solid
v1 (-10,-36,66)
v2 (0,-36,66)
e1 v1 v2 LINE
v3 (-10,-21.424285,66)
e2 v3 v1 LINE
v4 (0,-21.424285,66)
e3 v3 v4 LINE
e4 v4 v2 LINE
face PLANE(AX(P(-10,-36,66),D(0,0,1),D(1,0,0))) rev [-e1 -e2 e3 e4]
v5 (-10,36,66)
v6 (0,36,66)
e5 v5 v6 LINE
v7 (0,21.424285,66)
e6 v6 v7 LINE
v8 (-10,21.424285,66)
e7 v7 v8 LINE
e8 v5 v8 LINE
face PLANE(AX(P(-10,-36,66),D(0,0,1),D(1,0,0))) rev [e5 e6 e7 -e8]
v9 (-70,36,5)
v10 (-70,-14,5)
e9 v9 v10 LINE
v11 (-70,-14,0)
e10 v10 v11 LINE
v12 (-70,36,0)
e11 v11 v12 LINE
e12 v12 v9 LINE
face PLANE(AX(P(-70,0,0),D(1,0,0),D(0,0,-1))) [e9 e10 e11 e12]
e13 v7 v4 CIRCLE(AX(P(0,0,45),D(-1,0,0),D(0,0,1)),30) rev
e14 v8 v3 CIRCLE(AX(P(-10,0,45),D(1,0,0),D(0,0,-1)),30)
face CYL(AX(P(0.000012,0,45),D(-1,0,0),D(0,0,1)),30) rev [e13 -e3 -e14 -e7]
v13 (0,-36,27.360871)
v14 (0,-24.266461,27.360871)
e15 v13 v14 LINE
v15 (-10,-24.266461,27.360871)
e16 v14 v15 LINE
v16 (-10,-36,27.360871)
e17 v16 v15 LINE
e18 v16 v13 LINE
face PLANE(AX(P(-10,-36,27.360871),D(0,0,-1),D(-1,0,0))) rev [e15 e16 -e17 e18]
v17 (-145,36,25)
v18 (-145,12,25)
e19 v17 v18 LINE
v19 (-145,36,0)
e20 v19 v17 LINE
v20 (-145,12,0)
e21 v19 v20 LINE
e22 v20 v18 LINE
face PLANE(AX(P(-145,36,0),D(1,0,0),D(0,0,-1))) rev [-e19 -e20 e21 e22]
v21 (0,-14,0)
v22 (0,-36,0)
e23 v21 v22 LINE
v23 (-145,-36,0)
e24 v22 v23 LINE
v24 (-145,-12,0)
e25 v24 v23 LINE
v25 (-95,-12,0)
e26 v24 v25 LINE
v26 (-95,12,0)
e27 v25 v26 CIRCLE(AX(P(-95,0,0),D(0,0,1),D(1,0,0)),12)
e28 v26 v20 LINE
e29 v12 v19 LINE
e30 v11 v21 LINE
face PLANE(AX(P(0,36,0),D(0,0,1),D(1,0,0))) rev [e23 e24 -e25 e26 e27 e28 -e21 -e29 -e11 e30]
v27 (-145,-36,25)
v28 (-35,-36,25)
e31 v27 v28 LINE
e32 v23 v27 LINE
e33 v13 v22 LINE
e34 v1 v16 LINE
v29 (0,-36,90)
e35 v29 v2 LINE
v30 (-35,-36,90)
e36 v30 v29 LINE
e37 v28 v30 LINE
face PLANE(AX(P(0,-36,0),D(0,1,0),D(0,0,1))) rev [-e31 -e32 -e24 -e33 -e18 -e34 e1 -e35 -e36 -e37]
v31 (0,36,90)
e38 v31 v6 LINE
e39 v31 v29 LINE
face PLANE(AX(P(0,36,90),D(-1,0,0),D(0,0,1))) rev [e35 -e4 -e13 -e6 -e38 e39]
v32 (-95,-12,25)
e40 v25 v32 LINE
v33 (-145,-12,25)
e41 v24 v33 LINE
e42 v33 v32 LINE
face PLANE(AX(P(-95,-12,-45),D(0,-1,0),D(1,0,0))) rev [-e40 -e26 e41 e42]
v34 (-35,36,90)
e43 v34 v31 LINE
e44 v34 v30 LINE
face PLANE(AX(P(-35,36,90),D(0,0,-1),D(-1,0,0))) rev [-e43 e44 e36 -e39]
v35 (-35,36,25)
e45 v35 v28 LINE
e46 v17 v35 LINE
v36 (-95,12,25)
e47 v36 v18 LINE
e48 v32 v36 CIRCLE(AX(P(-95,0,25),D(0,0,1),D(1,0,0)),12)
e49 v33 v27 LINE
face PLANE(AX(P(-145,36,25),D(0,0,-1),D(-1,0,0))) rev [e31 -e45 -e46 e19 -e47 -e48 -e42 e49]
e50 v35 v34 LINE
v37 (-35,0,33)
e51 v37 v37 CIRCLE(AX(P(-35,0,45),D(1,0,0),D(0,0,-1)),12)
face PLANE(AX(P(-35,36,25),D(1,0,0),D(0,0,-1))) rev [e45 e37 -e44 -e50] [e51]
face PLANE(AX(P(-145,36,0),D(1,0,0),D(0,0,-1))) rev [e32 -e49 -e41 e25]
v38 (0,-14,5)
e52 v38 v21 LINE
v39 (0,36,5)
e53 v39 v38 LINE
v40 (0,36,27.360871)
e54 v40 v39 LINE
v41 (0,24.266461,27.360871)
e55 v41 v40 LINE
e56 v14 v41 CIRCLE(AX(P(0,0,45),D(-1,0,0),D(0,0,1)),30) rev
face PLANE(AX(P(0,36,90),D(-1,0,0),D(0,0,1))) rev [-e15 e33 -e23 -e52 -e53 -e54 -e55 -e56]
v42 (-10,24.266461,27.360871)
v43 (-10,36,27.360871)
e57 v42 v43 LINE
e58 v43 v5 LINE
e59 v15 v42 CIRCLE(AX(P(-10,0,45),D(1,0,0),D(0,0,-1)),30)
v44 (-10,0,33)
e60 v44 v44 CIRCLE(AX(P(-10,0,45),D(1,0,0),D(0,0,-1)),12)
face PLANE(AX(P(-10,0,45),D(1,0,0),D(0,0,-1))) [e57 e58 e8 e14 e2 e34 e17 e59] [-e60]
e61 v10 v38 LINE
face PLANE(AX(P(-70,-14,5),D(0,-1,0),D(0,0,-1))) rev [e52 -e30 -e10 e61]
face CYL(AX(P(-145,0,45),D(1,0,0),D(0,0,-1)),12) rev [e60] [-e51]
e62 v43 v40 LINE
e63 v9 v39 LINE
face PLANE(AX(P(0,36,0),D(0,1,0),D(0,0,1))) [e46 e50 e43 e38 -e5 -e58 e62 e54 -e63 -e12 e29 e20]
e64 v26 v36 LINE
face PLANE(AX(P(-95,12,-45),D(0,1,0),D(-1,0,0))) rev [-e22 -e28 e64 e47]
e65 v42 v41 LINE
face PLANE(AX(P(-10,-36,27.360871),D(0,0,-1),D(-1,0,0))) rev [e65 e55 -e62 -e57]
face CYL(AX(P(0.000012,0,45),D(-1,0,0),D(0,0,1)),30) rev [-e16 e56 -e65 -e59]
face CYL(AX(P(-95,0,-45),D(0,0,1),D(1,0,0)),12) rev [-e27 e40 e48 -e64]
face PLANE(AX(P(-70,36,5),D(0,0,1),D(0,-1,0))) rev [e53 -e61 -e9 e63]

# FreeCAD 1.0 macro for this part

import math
import FreeCAD as App
import Part
import Sketcher
Q = App.Units.Quantity


def add_polygon(sketch, points):
    """Adds a closed chain of lines whose ends are joined by coincident constraints."""
    first, n = sketch.GeometryCount, len(points)
    for a, b in zip(points, points[1:] + points[:1]):
        sketch.addGeometry(Part.LineSegment(App.Vector(*a, 0), App.Vector(*b, 0)), False)
    for i in range(n):
        sketch.addConstraint(Sketcher.Constraint("Coincident", first + i, 2, first + (i + 1) % n, 1))

doc = App.newDocument("Part")
body = doc.addObject("PartDesign::Body", "Body")

sketch1 = body.newObject("Sketcher::SketchObject", "Sketch")
sketch1.AttachmentSupport = (doc.getObject("XZ_Plane"), [""])
sketch1.MapMode = "FlatFace"
add_polygon(sketch1, [(0, 0), (-145, 0), (-145, 25), (-35, 25), (-35, 90), (0, 90)])
sketch1.addConstraint(Sketcher.Constraint("Horizontal", 0))
sketch1.addConstraint(Sketcher.Constraint("Vertical", 1))
sketch1.addConstraint(Sketcher.Constraint("Horizontal", 2))
sketch1.addConstraint(Sketcher.Constraint("Vertical", 3))
sketch1.addConstraint(Sketcher.Constraint("Horizontal", 4))
sketch1.addConstraint(Sketcher.Constraint("Vertical", 5))
sketch1.addConstraint(Sketcher.Constraint("Coincident", 5, 2, -1, 1))
sketch1.addConstraint(Sketcher.Constraint("DistanceX", 0, 2, 0, 1, Q("145 mm")))
sketch1.addConstraint(Sketcher.Constraint("DistanceX", 2, 1, 2, 2, Q("110 mm")))
sketch1.addConstraint(Sketcher.Constraint("DistanceY", 1, 1, 1, 2, Q("25 mm")))
sketch1.addConstraint(Sketcher.Constraint("DistanceY", 3, 1, 3, 2, Q("65 mm")))
pad1 = body.newObject("PartDesign::Pad", "Pad")
pad1.Profile = sketch1
pad1.Length = 72
pad1.Midplane = True

sketch2 = body.newObject("Sketcher::SketchObject", "Sketch001")
sketch2.AttachmentSupport = (doc.getObject("YZ_Plane"), [""])
sketch2.MapMode = "FlatFace"
sketch2.addGeometry(Part.Circle(App.Vector(0, 45, 0), App.Vector(0, 0, 1), 30), False)
sketch2.addConstraint(Sketcher.Constraint("PointOnObject", 0, 3, -2))
sketch2.addConstraint(Sketcher.Constraint("Diameter", 0, Q("60 mm")))
sketch2.addConstraint(Sketcher.Constraint("DistanceY", -1, 1, 0, 3, Q("45 mm")))
pocket1 = body.newObject("PartDesign::Pocket", "Pocket")
pocket1.Profile = sketch2
pocket1.Type = "TwoLengths"
pocket1.Length = 175.416169
pocket1.Length2 = 10
pocket1.Reversed = True

sketch3 = body.newObject("Sketcher::SketchObject", "Sketch002")
sketch3.AttachmentSupport = (doc.getObject("YZ_Plane"), [""])
sketch3.MapMode = "FlatFace"
add_polygon(sketch3, [(-36, 66), (-36, 27), (36, 27), (36, 66)])
sketch3.addConstraint(Sketcher.Constraint("Vertical", 0))
sketch3.addConstraint(Sketcher.Constraint("Horizontal", 1))
sketch3.addConstraint(Sketcher.Constraint("Vertical", 2))
sketch3.addConstraint(Sketcher.Constraint("Horizontal", 3))
sketch3.addConstraint(Sketcher.Constraint("DistanceX", 1, 1, 1, 2, Q("72 mm")))
sketch3.addConstraint(Sketcher.Constraint("DistanceX", 0, 2, -1, 1, Q("36 mm")))
sketch3.addConstraint(Sketcher.Constraint("DistanceY", -1, 1, 2, 2, Q("66 mm")))
sketch3.addConstraint(Sketcher.Constraint("DistanceY", 0, 2, 0, 1, Q("38.639129 mm")))
pocket2 = body.newObject("PartDesign::Pocket", "Pocket001")
pocket2.Profile = sketch3
pocket2.Length = 10

sketch4 = body.newObject("Sketcher::SketchObject", "Sketch003")
sketch4.AttachmentSupport = (doc.getObject("YZ_Plane"), [""])
sketch4.MapMode = "FlatFace"
sketch4.AttachmentOffset = App.Placement(App.Vector(0, 0, -10), App.Rotation())
sketch4.addGeometry(Part.Circle(App.Vector(0, 45, 0), App.Vector(0, 0, 1), 12), False)
sketch4.addConstraint(Sketcher.Constraint("PointOnObject", 0, 3, -2))
sketch4.addConstraint(Sketcher.Constraint("Diameter", 0, Q("24 mm")))
sketch4.addConstraint(Sketcher.Constraint("DistanceY", -1, 1, 0, 3, Q("45 mm")))
pocket3 = body.newObject("PartDesign::Pocket", "Pocket002")
pocket3.Profile = sketch4
pocket3.Type = "ThroughAll"

sketch5 = body.newObject("Sketcher::SketchObject", "Sketch004")
sketch5.AttachmentSupport = (doc.getObject("YZ_Plane"), [""])
sketch5.MapMode = "FlatFace"
add_polygon(sketch5, [(-14, 5), (-14, 0), (36, 0), (36, 5)])
sketch5.addConstraint(Sketcher.Constraint("Vertical", 0))
sketch5.addConstraint(Sketcher.Constraint("Horizontal", 1))
sketch5.addConstraint(Sketcher.Constraint("Vertical", 2))
sketch5.addConstraint(Sketcher.Constraint("Horizontal", 3))
sketch5.addConstraint(Sketcher.Constraint("PointOnObject", 0, 2, -1))
sketch5.addConstraint(Sketcher.Constraint("DistanceX", 1, 1, 1, 2, Q("50 mm")))
sketch5.addConstraint(Sketcher.Constraint("DistanceY", 0, 2, 0, 1, Q("5 mm")))
sketch5.addConstraint(Sketcher.Constraint("DistanceX", 0, 2, -1, 1, Q("14 mm")))
pocket4 = body.newObject("PartDesign::Pocket", "Pocket003")
pocket4.Profile = sketch5
pocket4.Length = 70

sketch6 = body.newObject("Sketcher::SketchObject", "Sketch005")
sketch6.AttachmentSupport = (doc.getObject("XY_Plane"), [""])
sketch6.MapMode = "FlatFace"
sketch6.AttachmentOffset = App.Placement(App.Vector(0, 0, 25), App.Rotation())
sketch6.addGeometry(Part.LineSegment(App.Vector(-95, 12, 0), App.Vector(-145, 12, 0)), False)
sketch6.addGeometry(Part.LineSegment(App.Vector(-145, 12, 0), App.Vector(-145, -12, 0)), False)
sketch6.addGeometry(Part.LineSegment(App.Vector(-145, -12, 0), App.Vector(-95, -12, 0)), False)
sketch6.addGeometry(Part.ArcOfCircle(Part.Circle(App.Vector(-95, 0, 0), App.Vector(0, 0, 1), 12), math.radians(-90), math.radians(90)), False)
sketch6.addConstraint(Sketcher.Constraint("Coincident", 0, 2, 1, 1))
sketch6.addConstraint(Sketcher.Constraint("Coincident", 1, 2, 2, 1))
sketch6.addConstraint(Sketcher.Constraint("Tangent", 2, 2, 3, 1))
sketch6.addConstraint(Sketcher.Constraint("Tangent", 3, 2, 0, 1))
sketch6.addConstraint(Sketcher.Constraint("Horizontal", 0))
sketch6.addConstraint(Sketcher.Constraint("Vertical", 1))
sketch6.addConstraint(Sketcher.Constraint("Horizontal", 2))
sketch6.addConstraint(Sketcher.Constraint("PointOnObject", 3, 3, -1))
sketch6.addConstraint(Sketcher.Constraint("Radius", 3, Q("12 mm")))
sketch6.addConstraint(Sketcher.Constraint("DistanceX", 0, 2, 0, 1, Q("50 mm")))
sketch6.addConstraint(Sketcher.Constraint("DistanceX", 3, 3, -1, 1, Q("95 mm")))
pocket5 = body.newObject("PartDesign::Pocket", "Pocket004")
pocket5.Profile = sketch6
pocket5.Length = 70

doc.recompute()
